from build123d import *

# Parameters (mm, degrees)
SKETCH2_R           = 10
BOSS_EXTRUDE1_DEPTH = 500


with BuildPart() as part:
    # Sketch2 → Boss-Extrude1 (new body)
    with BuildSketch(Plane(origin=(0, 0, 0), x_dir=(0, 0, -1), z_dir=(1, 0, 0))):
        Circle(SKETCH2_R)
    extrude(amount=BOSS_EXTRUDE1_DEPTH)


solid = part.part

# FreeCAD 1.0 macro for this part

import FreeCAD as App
import Part
import Sketcher
Q = App.Units.Quantity

doc = App.newDocument("Part")
body = doc.addObject("PartDesign::Body", "Body")

# Sketch on YZ plane
sketch1 = body.newObject("Sketcher::SketchObject", "Sketch")
sketch1.AttachmentSupport = (doc.getObject("YZ_Plane"), [""])
sketch1.MapMode = "FlatFace"
sketch1.addGeometry(Part.Circle(App.Vector(0, 0, 0), App.Vector(0, 0, 1), 10), False)
sketch1.addConstraint(Sketcher.Constraint("Coincident", 0, 3, -1, 1))
sketch1.addConstraint(Sketcher.Constraint("Diameter", 0, Q("20 mm")))
pad1 = body.newObject("PartDesign::Pad", "Pad")
pad1.Profile = sketch1
pad1.Length = 500

doc.recompute()
